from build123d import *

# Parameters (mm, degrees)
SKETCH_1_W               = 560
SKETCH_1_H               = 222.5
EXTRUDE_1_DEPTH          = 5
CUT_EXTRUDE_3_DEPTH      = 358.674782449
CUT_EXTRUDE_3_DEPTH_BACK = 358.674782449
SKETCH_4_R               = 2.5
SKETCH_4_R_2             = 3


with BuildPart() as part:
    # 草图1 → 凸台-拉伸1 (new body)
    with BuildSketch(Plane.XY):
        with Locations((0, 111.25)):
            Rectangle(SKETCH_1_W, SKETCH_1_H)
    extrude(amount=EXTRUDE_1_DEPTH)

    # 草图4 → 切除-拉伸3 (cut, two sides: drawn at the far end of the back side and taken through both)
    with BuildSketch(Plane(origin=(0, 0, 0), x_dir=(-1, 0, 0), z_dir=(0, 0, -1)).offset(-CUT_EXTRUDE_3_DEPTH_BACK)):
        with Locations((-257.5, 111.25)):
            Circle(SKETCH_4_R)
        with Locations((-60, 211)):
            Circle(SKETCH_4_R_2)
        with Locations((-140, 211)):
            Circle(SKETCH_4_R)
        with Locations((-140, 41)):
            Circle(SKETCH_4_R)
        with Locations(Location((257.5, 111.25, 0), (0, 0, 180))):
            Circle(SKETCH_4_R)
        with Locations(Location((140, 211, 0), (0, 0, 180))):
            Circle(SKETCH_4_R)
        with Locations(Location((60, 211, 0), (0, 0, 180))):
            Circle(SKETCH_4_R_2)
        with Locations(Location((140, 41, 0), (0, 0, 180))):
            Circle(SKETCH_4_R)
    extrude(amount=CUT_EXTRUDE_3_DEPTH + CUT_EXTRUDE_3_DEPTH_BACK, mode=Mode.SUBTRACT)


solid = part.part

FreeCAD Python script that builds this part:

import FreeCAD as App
import Part
import Sketcher
Q = App.Units.Quantity

doc = App.newDocument("Part")
body = doc.addObject("PartDesign::Body", "Body")

sketch1 = body.newObject("Sketcher::SketchObject", "Sketch")
sketch1.AttachmentSupport = (doc.getObject("XY_Plane"), [""])
sketch1.MapMode = "FlatFace"
sketch1.addGeometry(Part.LineSegment(App.Vector(-280, 222, 0), App.Vector(-280, 0, 0)), False)
sketch1.addGeometry(Part.LineSegment(App.Vector(-280, 0, 0), App.Vector(280, 0, 0)), False)
sketch1.addGeometry(Part.LineSegment(App.Vector(280, 0, 0), App.Vector(280, 222, 0)), False)
sketch1.addGeometry(Part.LineSegment(App.Vector(280, 222, 0), App.Vector(-280, 222, 0)), False)
sketch1.addConstraint(Sketcher.Constraint("Coincident", 0, 2, 1, 1))
sketch1.addConstraint(Sketcher.Constraint("Coincident", 1, 2, 2, 1))
sketch1.addConstraint(Sketcher.Constraint("Coincident", 2, 2, 3, 1))
sketch1.addConstraint(Sketcher.Constraint("Coincident", 3, 2, 0, 1))
sketch1.addConstraint(Sketcher.Constraint("Vertical", 0))
sketch1.addConstraint(Sketcher.Constraint("Horizontal", 1))
sketch1.addConstraint(Sketcher.Constraint("Vertical", 2))
sketch1.addConstraint(Sketcher.Constraint("Horizontal", 3))
sketch1.addConstraint(Sketcher.Constraint("Symmetric", 0, 2, 1, 2, -1, 1))
sketch1.addConstraint(Sketcher.Constraint("DistanceX", 1, 1, 1, 2, Q("560 mm")))
sketch1.addConstraint(Sketcher.Constraint("DistanceY", 0, 2, 0, 1, Q("222.5 mm")))
pad1 = body.newObject("PartDesign::Pad", "Pad")
pad1.Profile = sketch1
pad1.Length = 5

sketch2 = body.newObject("Sketcher::SketchObject", "Sketch001")
sketch2.AttachmentSupport = (doc.getObject("XY_Plane"), [""])
sketch2.MapMode = "FlatFace"
sketch2.addGeometry(Part.Circle(App.Vector(257.5, 111.2, 0), App.Vector(0, 0, 1), 2.5), False)
sketch2.addGeometry(Part.Circle(App.Vector(60, 211, 0), App.Vector(0, 0, 1), 3), False)
sketch2.addGeometry(Part.Circle(App.Vector(140, 211, 0), App.Vector(0, 0, 1), 2.5), False)
sketch2.addGeometry(Part.Circle(App.Vector(140, 41, 0), App.Vector(0, 0, 1), 2.5), False)
sketch2.addGeometry(Part.Circle(App.Vector(-257.5, 111.2, 0), App.Vector(0, 0, 1), 2.5), False)
sketch2.addGeometry(Part.Circle(App.Vector(-140, 211, 0), App.Vector(0, 0, 1), 2.5), False)
sketch2.addGeometry(Part.Circle(App.Vector(-60, 211, 0), App.Vector(0, 0, 1), 3), False)
sketch2.addGeometry(Part.Circle(App.Vector(-140, 41, 0), App.Vector(0, 0, 1), 2.5), False)
sketch2.addConstraint(Sketcher.Constraint("Equal", 0, 2))
sketch2.addConstraint(Sketcher.Constraint("Equal", 2, 3))
sketch2.addConstraint(Sketcher.Constraint("Equal", 3, 4))
sketch2.addConstraint(Sketcher.Constraint("Equal", 4, 5))
sketch2.addConstraint(Sketcher.Constraint("Equal", 1, 6))
sketch2.addConstraint(Sketcher.Constraint("Equal", 5, 7))
sketch2.addConstraint(Sketcher.Constraint("Symmetric", 0, 3, 4, 3, -2))
sketch2.addConstraint(Sketcher.Constraint("Symmetric", 2, 3, 5, 3, -2))
sketch2.addConstraint(Sketcher.Constraint("Symmetric", 1, 3, 6, 3, -2))
sketch2.addConstraint(Sketcher.Constraint("Symmetric", 3, 3, 7, 3, -2))
sketch2.addConstraint(Sketcher.Constraint("Horizontal", 1, 3, 2, 3))
sketch2.addConstraint(Sketcher.Constraint("Vertical", 2, 3, 3, 3))
sketch2.addConstraint(Sketcher.Constraint("Diameter", 0, Q("5 mm")))
sketch2.addConstraint(Sketcher.Constraint("Diameter", 1, Q("6 mm")))
sketch2.addConstraint(Sketcher.Constraint("DistanceX", -1, 1, 1, 3, Q("60 mm")))
sketch2.addConstraint(Sketcher.Constraint("DistanceY", -1, 1, 1, 3, Q("211 mm")))
sketch2.addConstraint(Sketcher.Constraint("DistanceX", -1, 1, 2, 3, Q("140 mm")))
sketch2.addConstraint(Sketcher.Constraint("DistanceY", -1, 1, 3, 3, Q("41 mm")))
sketch2.addConstraint(Sketcher.Constraint("DistanceX", 4, 3, 0, 3, Q("515 mm")))
sketch2.addConstraint(Sketcher.Constraint("DistanceY", -1, 1, 0, 3, Q("111.25 mm")))
pocket1 = body.newObject("PartDesign::Pocket", "Pocket")
pocket1.Profile = sketch2
pocket1.Type = "ThroughAll"
pocket1.Midplane = True

doc.recompute()
